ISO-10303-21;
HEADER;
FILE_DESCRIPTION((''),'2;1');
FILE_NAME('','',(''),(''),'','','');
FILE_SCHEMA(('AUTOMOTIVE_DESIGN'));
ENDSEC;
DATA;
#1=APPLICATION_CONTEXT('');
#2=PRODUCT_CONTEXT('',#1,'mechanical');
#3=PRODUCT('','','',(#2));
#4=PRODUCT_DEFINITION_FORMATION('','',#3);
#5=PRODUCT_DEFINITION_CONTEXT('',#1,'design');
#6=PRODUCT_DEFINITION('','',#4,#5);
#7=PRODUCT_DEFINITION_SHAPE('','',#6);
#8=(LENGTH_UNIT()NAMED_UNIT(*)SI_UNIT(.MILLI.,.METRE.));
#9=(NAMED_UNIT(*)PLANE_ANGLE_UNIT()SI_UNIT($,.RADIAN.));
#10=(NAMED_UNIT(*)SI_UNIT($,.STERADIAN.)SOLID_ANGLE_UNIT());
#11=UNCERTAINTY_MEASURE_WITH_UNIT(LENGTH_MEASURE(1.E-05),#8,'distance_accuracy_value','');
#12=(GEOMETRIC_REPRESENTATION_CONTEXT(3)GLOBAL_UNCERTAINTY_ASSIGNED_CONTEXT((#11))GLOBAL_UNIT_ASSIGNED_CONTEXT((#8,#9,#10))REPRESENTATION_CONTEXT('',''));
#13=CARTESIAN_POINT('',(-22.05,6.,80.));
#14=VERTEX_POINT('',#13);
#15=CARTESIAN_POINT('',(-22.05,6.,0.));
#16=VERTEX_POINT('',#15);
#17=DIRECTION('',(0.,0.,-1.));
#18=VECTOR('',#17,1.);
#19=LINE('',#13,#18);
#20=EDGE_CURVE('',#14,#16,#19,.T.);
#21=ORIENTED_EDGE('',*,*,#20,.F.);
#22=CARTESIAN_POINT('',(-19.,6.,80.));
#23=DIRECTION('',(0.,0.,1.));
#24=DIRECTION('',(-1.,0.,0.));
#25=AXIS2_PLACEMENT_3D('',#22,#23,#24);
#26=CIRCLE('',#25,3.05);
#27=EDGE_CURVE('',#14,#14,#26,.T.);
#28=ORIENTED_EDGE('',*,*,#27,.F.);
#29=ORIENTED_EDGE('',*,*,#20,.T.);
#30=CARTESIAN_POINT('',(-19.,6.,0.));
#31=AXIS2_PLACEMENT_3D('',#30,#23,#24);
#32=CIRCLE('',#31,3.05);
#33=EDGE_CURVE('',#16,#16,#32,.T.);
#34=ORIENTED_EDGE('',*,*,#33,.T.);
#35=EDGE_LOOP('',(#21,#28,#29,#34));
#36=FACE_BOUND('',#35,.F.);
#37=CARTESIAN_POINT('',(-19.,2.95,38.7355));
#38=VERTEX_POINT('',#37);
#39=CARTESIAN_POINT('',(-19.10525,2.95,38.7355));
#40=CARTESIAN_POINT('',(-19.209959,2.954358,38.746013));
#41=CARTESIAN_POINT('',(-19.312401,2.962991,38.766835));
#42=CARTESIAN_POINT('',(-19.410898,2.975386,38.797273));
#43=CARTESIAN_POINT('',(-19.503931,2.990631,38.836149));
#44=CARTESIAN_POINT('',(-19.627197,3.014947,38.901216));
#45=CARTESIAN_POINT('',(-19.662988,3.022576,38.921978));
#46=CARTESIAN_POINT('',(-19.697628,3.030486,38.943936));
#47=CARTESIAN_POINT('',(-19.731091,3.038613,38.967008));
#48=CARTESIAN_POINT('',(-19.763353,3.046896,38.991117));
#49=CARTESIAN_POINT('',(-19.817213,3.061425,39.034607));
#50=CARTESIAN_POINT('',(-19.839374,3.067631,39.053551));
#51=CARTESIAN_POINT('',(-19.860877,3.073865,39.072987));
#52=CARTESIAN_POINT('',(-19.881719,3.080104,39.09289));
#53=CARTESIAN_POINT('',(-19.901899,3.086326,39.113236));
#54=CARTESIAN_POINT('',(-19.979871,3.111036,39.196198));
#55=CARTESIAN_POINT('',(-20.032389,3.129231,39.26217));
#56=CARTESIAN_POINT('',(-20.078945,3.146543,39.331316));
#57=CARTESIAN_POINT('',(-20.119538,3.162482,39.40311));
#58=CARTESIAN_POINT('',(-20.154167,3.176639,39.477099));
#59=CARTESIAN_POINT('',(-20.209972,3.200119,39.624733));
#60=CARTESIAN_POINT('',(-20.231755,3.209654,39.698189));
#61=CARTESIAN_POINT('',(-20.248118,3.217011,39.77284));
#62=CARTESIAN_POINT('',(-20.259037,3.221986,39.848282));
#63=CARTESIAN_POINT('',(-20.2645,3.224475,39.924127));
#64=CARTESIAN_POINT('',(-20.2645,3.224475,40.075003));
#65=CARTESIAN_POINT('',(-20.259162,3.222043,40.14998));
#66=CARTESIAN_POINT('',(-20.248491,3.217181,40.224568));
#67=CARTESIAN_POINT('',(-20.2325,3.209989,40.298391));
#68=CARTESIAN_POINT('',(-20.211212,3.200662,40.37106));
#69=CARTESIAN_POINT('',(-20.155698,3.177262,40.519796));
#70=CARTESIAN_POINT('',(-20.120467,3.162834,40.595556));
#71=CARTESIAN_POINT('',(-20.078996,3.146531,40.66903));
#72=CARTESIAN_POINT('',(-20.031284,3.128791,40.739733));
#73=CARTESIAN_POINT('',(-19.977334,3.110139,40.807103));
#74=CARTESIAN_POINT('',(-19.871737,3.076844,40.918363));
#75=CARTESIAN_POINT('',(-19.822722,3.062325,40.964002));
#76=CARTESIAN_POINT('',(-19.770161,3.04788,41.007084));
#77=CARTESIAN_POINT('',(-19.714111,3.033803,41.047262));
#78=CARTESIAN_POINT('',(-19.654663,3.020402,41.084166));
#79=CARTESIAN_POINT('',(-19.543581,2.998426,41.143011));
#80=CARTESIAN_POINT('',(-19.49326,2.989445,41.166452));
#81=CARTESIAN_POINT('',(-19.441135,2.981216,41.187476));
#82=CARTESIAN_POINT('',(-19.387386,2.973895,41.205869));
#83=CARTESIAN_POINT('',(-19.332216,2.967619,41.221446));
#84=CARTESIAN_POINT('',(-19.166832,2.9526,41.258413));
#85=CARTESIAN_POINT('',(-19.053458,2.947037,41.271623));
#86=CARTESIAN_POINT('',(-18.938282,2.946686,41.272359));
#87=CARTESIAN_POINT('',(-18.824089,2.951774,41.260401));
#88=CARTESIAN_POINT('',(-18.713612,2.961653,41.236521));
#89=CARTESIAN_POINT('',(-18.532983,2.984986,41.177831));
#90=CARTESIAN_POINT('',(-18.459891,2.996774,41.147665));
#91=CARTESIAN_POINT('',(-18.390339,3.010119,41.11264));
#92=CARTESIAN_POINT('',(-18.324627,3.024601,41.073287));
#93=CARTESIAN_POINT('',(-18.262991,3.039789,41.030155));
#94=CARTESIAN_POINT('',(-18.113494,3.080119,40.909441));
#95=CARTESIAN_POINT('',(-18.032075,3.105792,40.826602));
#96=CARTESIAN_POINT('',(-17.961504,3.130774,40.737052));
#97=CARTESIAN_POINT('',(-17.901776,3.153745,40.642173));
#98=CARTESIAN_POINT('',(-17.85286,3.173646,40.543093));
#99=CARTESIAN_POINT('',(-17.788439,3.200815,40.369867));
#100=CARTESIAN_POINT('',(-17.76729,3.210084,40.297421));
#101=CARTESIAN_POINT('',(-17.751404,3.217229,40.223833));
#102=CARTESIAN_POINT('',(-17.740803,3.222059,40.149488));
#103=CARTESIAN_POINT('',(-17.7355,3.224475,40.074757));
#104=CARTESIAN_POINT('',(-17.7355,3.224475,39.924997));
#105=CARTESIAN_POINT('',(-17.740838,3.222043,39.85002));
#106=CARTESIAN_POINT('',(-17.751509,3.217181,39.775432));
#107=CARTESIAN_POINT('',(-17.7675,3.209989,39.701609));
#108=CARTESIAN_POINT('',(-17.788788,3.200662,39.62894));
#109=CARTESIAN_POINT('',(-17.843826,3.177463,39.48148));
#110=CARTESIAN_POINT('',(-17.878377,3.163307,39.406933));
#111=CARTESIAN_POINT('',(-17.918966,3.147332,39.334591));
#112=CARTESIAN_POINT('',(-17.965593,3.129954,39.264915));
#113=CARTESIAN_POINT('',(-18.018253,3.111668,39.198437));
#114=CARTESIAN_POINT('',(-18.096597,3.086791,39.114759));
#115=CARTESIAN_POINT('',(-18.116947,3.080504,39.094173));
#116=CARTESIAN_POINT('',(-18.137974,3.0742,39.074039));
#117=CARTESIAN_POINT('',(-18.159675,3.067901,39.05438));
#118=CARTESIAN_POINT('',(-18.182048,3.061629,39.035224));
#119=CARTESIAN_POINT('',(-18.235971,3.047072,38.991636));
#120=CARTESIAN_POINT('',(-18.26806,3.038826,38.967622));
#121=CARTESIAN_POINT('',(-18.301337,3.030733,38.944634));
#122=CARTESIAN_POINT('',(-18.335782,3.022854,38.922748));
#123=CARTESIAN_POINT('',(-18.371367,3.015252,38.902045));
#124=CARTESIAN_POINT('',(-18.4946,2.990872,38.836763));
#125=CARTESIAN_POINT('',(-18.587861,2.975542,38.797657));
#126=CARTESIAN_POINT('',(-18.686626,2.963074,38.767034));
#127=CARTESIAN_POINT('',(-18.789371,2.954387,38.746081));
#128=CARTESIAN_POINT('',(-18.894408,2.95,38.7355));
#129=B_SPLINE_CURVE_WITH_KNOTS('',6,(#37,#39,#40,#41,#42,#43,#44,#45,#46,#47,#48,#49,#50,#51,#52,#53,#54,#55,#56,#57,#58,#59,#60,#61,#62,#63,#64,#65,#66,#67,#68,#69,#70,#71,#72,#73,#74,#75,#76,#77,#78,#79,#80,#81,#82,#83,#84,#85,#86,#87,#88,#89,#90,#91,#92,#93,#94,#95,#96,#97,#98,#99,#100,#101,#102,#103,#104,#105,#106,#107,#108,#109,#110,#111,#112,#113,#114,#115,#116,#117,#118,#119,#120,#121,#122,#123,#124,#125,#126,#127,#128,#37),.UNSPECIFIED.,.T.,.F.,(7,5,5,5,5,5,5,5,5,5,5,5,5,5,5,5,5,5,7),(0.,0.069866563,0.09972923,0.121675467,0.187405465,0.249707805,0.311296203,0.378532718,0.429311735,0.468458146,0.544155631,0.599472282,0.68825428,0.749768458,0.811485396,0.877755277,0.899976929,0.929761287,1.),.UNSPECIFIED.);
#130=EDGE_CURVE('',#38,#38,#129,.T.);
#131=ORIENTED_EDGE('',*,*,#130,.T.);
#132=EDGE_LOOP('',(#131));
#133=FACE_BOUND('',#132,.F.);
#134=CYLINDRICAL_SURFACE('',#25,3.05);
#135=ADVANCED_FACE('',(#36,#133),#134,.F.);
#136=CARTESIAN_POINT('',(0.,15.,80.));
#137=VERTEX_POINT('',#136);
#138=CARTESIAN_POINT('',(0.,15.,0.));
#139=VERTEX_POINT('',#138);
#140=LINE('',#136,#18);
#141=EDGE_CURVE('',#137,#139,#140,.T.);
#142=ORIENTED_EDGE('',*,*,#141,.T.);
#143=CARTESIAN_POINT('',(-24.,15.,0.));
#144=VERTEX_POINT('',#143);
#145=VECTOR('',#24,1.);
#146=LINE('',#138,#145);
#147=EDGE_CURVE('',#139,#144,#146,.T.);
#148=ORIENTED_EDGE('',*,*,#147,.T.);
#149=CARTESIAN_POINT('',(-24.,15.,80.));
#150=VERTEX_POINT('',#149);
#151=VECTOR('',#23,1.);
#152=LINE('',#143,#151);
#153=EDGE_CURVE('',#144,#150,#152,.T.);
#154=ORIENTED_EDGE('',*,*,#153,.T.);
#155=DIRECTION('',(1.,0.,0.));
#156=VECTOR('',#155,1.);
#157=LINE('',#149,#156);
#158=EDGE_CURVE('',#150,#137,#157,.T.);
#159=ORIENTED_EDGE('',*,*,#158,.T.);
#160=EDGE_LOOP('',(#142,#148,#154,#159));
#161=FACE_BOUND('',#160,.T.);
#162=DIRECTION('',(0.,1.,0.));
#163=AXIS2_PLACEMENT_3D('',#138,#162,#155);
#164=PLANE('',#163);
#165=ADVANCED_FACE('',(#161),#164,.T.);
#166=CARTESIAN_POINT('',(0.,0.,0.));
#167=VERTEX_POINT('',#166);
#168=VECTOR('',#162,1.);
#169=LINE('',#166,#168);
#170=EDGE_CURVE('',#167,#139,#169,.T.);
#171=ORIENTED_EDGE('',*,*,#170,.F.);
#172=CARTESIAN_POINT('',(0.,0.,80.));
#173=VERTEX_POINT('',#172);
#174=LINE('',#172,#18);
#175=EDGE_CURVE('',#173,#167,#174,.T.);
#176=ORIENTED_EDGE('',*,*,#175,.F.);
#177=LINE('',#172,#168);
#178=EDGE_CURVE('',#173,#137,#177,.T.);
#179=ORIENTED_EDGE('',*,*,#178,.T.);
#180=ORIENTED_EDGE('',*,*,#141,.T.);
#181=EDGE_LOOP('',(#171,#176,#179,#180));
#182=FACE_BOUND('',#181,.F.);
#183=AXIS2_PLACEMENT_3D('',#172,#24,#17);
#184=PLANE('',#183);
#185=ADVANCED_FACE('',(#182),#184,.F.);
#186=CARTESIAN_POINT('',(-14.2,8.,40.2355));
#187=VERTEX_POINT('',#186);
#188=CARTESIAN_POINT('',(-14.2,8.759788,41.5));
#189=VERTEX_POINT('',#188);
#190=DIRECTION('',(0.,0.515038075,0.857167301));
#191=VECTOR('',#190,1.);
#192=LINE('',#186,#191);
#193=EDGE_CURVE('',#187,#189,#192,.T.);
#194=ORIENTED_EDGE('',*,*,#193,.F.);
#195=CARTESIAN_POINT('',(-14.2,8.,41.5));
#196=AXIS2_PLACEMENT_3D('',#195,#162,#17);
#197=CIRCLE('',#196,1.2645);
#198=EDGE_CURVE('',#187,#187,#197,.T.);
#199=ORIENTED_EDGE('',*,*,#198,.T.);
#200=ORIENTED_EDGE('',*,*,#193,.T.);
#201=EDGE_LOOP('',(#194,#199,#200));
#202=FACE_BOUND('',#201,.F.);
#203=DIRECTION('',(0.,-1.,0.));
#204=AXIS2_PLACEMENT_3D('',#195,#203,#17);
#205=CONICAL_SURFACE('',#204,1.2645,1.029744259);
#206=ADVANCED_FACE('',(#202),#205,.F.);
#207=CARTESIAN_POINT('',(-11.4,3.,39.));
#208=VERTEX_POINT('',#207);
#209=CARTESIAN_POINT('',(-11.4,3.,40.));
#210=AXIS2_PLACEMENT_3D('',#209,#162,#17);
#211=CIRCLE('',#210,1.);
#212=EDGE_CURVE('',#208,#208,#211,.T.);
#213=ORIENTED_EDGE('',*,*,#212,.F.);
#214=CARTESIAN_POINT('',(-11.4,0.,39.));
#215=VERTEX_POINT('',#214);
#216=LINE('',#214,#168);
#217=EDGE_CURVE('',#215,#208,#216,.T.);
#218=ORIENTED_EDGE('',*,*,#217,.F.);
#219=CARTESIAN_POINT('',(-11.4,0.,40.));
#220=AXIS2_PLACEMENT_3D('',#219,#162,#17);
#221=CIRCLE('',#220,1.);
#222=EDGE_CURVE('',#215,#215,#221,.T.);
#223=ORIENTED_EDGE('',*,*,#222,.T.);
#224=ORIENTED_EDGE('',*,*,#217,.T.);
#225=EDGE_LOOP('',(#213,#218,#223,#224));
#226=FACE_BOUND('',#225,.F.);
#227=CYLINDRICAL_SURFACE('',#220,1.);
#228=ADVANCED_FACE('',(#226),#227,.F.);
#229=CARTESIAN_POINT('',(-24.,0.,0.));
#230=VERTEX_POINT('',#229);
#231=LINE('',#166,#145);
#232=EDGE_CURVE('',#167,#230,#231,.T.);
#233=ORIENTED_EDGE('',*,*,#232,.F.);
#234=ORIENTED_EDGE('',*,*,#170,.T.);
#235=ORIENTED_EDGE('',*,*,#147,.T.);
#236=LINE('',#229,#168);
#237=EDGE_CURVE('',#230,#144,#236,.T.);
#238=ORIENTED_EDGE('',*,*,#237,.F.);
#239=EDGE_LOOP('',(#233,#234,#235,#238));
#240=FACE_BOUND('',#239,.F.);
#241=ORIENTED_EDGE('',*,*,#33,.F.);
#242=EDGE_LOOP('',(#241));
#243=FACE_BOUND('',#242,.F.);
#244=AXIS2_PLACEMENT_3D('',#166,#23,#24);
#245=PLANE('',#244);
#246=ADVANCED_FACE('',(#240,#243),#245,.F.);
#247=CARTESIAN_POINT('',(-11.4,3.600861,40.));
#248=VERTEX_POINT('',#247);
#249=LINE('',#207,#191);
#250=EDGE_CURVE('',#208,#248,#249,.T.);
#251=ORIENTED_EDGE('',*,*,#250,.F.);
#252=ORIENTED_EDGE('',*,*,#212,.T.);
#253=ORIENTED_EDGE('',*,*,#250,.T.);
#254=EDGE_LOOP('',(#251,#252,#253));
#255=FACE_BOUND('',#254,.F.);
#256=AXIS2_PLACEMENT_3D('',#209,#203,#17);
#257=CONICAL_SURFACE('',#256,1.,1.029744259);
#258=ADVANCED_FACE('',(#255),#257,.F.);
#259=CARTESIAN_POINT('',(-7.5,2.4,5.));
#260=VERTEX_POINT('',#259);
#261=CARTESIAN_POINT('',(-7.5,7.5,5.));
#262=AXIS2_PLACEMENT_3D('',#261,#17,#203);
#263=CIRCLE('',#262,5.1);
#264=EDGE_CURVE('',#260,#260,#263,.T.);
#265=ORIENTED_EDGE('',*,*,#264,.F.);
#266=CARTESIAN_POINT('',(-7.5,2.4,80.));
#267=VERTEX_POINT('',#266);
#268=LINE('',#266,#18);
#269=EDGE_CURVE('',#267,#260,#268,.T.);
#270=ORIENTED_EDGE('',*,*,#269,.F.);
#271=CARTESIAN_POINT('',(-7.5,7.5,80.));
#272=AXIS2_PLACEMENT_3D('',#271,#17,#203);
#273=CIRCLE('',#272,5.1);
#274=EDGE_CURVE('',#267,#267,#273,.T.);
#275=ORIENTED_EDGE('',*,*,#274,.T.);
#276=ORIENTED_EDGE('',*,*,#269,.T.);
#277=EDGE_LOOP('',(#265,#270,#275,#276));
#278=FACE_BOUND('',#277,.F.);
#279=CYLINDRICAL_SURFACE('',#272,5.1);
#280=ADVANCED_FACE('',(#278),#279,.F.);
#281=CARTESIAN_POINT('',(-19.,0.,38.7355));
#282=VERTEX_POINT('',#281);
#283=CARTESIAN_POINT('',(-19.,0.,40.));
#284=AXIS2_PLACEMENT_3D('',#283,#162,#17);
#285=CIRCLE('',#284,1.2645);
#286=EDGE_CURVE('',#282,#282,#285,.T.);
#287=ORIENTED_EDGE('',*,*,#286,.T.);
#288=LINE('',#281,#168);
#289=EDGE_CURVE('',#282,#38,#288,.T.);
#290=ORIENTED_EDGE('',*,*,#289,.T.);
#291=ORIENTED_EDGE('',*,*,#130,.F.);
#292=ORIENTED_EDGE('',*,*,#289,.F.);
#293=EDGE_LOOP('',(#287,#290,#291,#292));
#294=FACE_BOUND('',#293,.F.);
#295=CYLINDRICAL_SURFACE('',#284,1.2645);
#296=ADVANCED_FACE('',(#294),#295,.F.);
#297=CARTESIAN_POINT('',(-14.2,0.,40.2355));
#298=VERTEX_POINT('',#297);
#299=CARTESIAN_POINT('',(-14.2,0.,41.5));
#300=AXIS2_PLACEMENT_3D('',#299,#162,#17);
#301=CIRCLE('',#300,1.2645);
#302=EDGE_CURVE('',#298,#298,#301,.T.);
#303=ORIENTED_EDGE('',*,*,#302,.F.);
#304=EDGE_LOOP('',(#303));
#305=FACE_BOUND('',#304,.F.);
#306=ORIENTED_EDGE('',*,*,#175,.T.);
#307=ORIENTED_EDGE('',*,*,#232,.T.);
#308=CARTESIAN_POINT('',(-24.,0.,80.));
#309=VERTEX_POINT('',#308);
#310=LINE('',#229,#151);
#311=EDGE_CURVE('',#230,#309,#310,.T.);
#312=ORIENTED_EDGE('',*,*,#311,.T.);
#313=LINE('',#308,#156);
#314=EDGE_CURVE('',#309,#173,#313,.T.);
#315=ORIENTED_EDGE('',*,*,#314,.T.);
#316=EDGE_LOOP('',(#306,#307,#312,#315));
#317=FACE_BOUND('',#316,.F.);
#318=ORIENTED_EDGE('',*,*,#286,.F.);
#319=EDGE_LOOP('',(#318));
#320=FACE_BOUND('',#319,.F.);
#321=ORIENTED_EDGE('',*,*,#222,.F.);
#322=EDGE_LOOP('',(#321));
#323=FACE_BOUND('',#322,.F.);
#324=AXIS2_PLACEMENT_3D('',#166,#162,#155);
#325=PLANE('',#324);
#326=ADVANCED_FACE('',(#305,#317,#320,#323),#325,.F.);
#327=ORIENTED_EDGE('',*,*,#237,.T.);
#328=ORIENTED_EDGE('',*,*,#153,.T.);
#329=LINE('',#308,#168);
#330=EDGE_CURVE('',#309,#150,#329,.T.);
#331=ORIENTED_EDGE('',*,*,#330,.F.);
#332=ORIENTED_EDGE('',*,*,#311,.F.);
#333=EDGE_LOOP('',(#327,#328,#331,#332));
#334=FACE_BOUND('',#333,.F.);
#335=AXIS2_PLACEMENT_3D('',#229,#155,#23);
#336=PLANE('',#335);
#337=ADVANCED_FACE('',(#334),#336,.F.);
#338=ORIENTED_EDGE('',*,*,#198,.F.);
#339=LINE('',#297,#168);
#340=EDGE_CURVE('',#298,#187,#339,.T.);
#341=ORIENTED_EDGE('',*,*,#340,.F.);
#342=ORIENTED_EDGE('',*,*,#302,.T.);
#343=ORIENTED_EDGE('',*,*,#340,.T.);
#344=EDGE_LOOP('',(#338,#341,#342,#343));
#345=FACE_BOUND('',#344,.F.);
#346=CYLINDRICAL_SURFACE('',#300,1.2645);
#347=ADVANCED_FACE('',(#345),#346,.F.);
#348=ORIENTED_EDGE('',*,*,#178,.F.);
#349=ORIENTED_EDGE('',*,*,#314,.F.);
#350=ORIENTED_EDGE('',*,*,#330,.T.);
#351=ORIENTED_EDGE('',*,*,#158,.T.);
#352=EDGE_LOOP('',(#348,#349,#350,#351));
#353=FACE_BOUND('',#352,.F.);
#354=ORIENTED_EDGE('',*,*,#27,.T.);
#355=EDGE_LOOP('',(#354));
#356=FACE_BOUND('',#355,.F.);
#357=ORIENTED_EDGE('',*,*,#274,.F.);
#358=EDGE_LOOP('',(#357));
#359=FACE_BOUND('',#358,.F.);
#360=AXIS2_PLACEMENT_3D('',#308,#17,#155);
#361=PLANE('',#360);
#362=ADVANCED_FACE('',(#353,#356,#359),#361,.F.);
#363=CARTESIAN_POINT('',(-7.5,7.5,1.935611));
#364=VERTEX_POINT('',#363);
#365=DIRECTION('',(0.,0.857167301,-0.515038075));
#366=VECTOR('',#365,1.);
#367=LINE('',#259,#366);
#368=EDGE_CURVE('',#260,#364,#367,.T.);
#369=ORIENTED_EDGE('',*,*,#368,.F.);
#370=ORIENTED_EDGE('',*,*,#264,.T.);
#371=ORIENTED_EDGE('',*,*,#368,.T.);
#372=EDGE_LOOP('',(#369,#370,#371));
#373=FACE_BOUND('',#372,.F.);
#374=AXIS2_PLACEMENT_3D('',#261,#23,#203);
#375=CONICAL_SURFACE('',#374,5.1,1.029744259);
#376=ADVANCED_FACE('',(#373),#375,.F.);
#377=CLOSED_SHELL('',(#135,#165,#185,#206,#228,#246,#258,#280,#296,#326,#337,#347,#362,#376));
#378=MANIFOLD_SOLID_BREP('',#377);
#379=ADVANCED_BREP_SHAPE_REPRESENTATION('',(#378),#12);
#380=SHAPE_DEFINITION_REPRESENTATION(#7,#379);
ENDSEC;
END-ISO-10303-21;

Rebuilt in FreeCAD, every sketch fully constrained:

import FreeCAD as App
import Part
import Sketcher

V = App.Vector

doc = App.newDocument("Part")
params = doc.addObject("Spreadsheet::Sheet", "Params")
for row, (alias, value) in enumerate([
    ("sketch1_width", "24 mm"),
    ("sketch1_height", "80 mm"),
    ("pad1_length", "15 mm"),
    ("sketch2_diameter", "6.1 mm"),
    ("sketch3_diameter", "10.2 mm"),
    ("hole_diameter", "10.2 mm"),
    ("hole_depth", "75 mm"),
    ("hole2_diameter", "2.529 mm"),
    ("hole2_depth", "8 mm"),
    ("hole3_diameter", "2.529 mm"),
    ("hole3_depth", "6 mm"),
    ("sketch6_diameter", "2 mm"),
    ("hole4_diameter", "2 mm"),
    ("hole4_depth", "3 mm"),
], start=1):
    params.set(f"A{row}", alias)
    params.set(f"B{row}", "=" + value)
    params.setAlias(f"B{row}", alias)

body = doc.addObject("PartDesign::Body", "Body")

sketch1 = body.newObject("Sketcher::SketchObject", "Sketch")
sketch1.AttachmentSupport = (doc.getObject("XZ_Plane"), [""])
sketch1.MapMode = "FlatFace"
sketch1.addGeometry([
    Part.LineSegment(V(0, 80, 0), V(0, 0, 0)),
    Part.LineSegment(V(0, 0, 0), V(-24, 0, 0)),
    Part.LineSegment(V(-24, 0, 0), V(-24, 80, 0)),
    Part.LineSegment(V(-24, 80, 0), V(0, 80, 0)),
], False)
sketch1.addConstraint([
    Sketcher.Constraint("Coincident", 0, 2, 1, 1),
    Sketcher.Constraint("Coincident", 1, 2, 2, 1),
    Sketcher.Constraint("Coincident", 2, 2, 3, 1),
    Sketcher.Constraint("Coincident", 3, 2, 0, 1),
    Sketcher.Constraint("Vertical", 0),
    Sketcher.Constraint("Horizontal", 1),
    Sketcher.Constraint("Vertical", 2),
    Sketcher.Constraint("Horizontal", 3),
    Sketcher.Constraint("Coincident", 0, 2, -1, 1),
    Sketcher.Constraint("DistanceX", 1, 2, 1, 1, 24.0),
    Sketcher.Constraint("DistanceY", 0, 2, 0, 1, 80.0),
])
sketch1.setExpression("Constraints[9]", "Params.sketch1_width")
sketch1.setExpression("Constraints[10]", "Params.sketch1_height")
pad1 = body.newObject("PartDesign::Pad", "Pad")
pad1.Profile = sketch1
pad1.setExpression("Length", "Params.pad1_length")
pad1.Reversed = True

sketch2 = body.newObject("Sketcher::SketchObject", "Sketch001")
sketch2.AttachmentSupport = (doc.getObject("XY_Plane"), [""])
sketch2.MapMode = "FlatFace"
sketch2.AttachmentOffset = App.Placement(V(0, 0, 80), App.Rotation())
sketch2.addGeometry(Part.Circle(V(-19, 6, 0), V(0, 0, 1), 3), False)
sketch2.addConstraint([
    Sketcher.Constraint("DistanceY", -1, 1, 0, 3, 6.0),
    Sketcher.Constraint("Diameter", 0, 6.1),
    Sketcher.Constraint("DistanceX", 0, 3, -1, 1, 19.0),
])
sketch2.setExpression("Constraints[1]", "Params.sketch2_diameter")
pocket1 = body.newObject("PartDesign::Pocket", "Pocket")
pocket1.Profile = sketch2
pocket1.Type = "ThroughAll"

sketch3 = body.newObject("Sketcher::SketchObject", "Sketch002")
sketch3.AttachmentSupport = (doc.getObject("XY_Plane"), [""])
sketch3.MapMode = "FlatFace"
sketch3.AttachmentOffset = App.Placement(V(0, 0, 80), App.Rotation())
sketch3.addGeometry(Part.Circle(V(-8, 8, 0), V(0, 0, 1), 5), False)
sketch3.addConstraint([
    Sketcher.Constraint("Diameter", 0, 10.2),
    Sketcher.Constraint("DistanceX", 0, 3, -1, 1, 7.5),
    Sketcher.Constraint("DistanceY", -1, 1, 0, 3, 7.5),
])
sketch3.setExpression("Constraints[0]", "Params.sketch3_diameter")
doc.recompute()
hole = body.newObject("PartDesign::Hole", "Hole")
hole.Profile = sketch3
hole.ThreadType = "None"
hole.setExpression("Diameter", "Params.hole_diameter")
hole.DepthType = "Dimension"
hole.setExpression("Depth", "Params.hole_depth")
hole.DrillPoint = "Angled"
hole.DrillPointAngle = 118

sketch4 = body.newObject("Sketcher::SketchObject", "Sketch003")
sketch4.AttachmentSupport = (doc.getObject("XZ_Plane"), [""])
sketch4.MapMode = "FlatFace"
sketch4.addGeometry(Part.Circle(V(-14.2, 41.5, 0), V(0, 0, 1), 1.3), False)
sketch4.addConstraint([
    Sketcher.Constraint("Diameter", 0, 2.529),
    Sketcher.Constraint("DistanceX", 0, 3, -1, 1, 14.2),
    Sketcher.Constraint("DistanceY", -1, 1, 0, 3, 41.5),
])
doc.recompute()
hole2 = body.newObject("PartDesign::Hole", "Hole001")
hole2.Profile = sketch4
hole2.ThreadType = "None"
hole2.setExpression("Diameter", "Params.hole2_diameter")
hole2.DepthType = "Dimension"
hole2.setExpression("Depth", "Params.hole2_depth")
hole2.DrillPoint = "Angled"
hole2.DrillPointAngle = 118

sketch5 = body.newObject("Sketcher::SketchObject", "Sketch004")
sketch5.AttachmentSupport = (doc.getObject("XZ_Plane"), [""])
sketch5.MapMode = "FlatFace"
sketch5.addGeometry(Part.Circle(V(-19, 40, 0), V(0, 0, 1), 1.3), False)
sketch5.addConstraint([
    Sketcher.Constraint("Diameter", 0, 2.529),
    Sketcher.Constraint("DistanceX", 0, 3, -1, 1, 19.0),
    Sketcher.Constraint("DistanceY", -1, 1, 0, 3, 40.0),
])
doc.recompute()
hole3 = body.newObject("PartDesign::Hole", "Hole002")
hole3.Profile = sketch5
hole3.ThreadType = "None"
hole3.setExpression("Diameter", "Params.hole3_diameter")
hole3.DepthType = "Dimension"
hole3.setExpression("Depth", "Params.hole3_depth")
hole3.DrillPoint = "Angled"
hole3.DrillPointAngle = 118

sketch6 = body.newObject("Sketcher::SketchObject", "Sketch005")
sketch6.AttachmentSupport = (doc.getObject("XZ_Plane"), [""])
sketch6.MapMode = "FlatFace"
sketch6.addGeometry(Part.Circle(V(-11.4, 40, 0), V(0, 0, 1), 1), False)
sketch6.addConstraint([
    Sketcher.Constraint("Diameter", 0, 2.0),
    Sketcher.Constraint("DistanceY", -1, 1, 0, 3, 40.0),
    Sketcher.Constraint("DistanceX", 0, 3, -1, 1, 11.4),
])
sketch6.setExpression("Constraints[0]", "Params.sketch6_diameter")
doc.recompute()
hole4 = body.newObject("PartDesign::Hole", "Hole003")
hole4.Profile = sketch6
hole4.ThreadType = "None"
hole4.setExpression("Diameter", "Params.hole4_diameter")
hole4.DepthType = "Dimension"
hole4.setExpression("Depth", "Params.hole4_depth")
hole4.DrillPoint = "Angled"
hole4.DrillPointAngle = 118

doc.recompute()
